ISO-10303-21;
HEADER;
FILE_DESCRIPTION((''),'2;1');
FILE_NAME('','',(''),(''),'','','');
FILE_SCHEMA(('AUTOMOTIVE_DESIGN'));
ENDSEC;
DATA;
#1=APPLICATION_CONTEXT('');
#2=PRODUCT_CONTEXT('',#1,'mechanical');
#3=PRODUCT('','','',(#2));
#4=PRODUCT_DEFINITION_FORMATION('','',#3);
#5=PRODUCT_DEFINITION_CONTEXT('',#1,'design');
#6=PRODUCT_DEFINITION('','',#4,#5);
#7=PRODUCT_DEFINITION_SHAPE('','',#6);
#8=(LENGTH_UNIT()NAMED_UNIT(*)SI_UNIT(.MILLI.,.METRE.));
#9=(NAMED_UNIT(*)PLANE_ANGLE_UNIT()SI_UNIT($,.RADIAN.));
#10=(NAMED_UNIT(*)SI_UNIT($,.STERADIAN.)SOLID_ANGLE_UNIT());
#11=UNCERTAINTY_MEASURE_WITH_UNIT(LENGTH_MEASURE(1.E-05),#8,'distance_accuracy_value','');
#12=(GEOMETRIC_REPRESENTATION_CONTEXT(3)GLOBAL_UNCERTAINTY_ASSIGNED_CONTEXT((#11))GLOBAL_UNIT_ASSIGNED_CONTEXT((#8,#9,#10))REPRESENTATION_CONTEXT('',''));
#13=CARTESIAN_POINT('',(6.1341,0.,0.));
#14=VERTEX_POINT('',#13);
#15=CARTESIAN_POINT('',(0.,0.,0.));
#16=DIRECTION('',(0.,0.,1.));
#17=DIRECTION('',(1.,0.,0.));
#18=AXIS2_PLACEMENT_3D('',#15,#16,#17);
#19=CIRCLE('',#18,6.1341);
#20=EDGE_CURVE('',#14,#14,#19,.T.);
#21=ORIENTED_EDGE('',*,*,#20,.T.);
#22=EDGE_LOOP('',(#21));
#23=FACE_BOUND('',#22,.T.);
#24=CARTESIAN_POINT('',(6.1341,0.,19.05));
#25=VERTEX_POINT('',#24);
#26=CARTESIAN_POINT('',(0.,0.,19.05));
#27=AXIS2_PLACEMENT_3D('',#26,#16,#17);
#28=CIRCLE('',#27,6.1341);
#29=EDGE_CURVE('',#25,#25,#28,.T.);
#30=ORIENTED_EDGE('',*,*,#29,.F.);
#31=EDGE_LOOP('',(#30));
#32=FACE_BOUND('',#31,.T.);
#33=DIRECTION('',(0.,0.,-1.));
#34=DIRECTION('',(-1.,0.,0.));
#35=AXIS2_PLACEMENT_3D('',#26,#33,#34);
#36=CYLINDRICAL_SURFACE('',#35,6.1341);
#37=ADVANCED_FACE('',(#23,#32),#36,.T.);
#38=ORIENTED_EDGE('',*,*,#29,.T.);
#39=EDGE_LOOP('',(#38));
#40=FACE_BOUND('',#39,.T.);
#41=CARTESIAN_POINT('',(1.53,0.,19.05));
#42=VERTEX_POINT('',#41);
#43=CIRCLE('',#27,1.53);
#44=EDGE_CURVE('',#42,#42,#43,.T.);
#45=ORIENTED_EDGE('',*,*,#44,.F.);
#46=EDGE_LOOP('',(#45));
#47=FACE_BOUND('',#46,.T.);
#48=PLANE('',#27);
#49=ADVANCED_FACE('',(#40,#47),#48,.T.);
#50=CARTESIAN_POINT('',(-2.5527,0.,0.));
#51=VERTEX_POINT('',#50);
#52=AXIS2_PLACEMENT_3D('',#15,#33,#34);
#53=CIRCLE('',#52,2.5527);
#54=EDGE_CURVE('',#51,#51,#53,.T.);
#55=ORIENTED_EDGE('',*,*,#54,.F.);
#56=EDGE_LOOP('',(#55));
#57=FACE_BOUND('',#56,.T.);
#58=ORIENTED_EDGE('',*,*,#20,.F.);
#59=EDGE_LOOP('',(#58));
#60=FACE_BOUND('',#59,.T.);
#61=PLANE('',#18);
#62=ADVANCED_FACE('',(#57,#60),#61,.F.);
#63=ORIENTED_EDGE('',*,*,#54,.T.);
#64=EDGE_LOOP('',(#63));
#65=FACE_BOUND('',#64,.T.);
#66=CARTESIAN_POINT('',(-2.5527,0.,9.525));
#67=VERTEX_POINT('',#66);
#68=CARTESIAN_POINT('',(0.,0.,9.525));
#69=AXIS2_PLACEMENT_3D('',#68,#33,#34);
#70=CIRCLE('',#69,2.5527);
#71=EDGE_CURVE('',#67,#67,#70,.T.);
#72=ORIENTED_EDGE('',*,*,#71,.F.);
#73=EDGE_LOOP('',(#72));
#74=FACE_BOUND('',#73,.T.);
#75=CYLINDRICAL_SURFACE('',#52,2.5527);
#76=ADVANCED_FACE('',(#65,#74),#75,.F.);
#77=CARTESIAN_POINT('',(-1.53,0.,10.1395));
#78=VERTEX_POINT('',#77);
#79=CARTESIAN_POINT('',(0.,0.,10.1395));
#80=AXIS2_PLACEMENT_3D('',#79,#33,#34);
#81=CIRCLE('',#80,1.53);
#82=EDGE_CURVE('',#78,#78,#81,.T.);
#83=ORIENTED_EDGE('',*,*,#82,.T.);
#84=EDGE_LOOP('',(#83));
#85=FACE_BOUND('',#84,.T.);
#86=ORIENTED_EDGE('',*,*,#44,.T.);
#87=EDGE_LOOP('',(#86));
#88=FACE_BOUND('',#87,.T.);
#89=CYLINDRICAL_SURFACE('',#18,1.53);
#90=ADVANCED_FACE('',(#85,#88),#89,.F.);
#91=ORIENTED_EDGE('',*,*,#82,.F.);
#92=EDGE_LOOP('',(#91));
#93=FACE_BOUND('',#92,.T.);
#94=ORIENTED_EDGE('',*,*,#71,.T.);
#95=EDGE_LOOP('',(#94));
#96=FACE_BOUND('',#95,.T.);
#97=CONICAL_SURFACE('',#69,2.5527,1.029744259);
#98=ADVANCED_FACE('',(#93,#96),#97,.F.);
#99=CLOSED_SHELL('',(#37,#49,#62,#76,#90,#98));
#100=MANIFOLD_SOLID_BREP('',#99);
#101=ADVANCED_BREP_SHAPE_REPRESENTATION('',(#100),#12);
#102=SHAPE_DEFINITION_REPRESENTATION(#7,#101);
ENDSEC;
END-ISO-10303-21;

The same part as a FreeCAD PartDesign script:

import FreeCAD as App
import Part
import Sketcher
Q = App.Units.Quantity

doc = App.newDocument("Part")
body = doc.addObject("PartDesign::Body", "Body")

sketch1 = body.newObject("Sketcher::SketchObject", "Sketch")
sketch1.AttachmentSupport = (doc.getObject("XY_Plane"), [""])
sketch1.MapMode = "FlatFace"
sketch1.addGeometry(Part.Circle(App.Vector(0, 0, 0), App.Vector(0, 0, 1), 6), False)
sketch1.addConstraint(Sketcher.Constraint("Coincident", 0, 3, -1, 1))
sketch1.addConstraint(Sketcher.Constraint("Diameter", 0, Q("0.483 in")))
pad1 = body.newObject("PartDesign::Pad", "Pad")
pad1.Profile = sketch1
pad1.Length = Q("0.75 in")

sketch2 = body.newObject("Sketcher::SketchObject", "Sketch001")
sketch2.AttachmentSupport = (doc.getObject("XY_Plane"), [""])
sketch2.MapMode = "FlatFace"
sketch2.AttachmentOffset = App.Placement(App.Vector(0, 0, 0.75 * 25.4), App.Rotation())
sketch2.addGeometry(Part.Circle(App.Vector(0, 0, 0), App.Vector(0, 0, 1), 1.5), False)
sketch2.addConstraint(Sketcher.Constraint("Coincident", 0, 3, -1, 1))
sketch2.addConstraint(Sketcher.Constraint("Diameter", 0, Q("3.06 mm")))
pocket1 = body.newObject("PartDesign::Pocket", "Pocket")
pocket1.Profile = sketch2
pocket1.Type = "ThroughAll"

sketch3 = body.newObject("Sketcher::SketchObject", "Sketch002")
sketch3.AttachmentSupport = (doc.getObject("XY_Plane"), [""])
sketch3.MapMode = "FlatFace"
sketch3.addGeometry(Part.Circle(App.Vector(0, 0, 0), App.Vector(0, 0, 1), 2.6), False)
sketch3.addConstraint(Sketcher.Constraint("Coincident", 0, 3, -1, 1))
sketch3.addConstraint(Sketcher.Constraint("Diameter", 0, Q("0.201 in")))
doc.recompute()
hole = body.newObject("PartDesign::Hole", "Hole")
hole.Profile = sketch3
hole.ThreadType = "None"
hole.Diameter = Q("0.201 in")
hole.DepthType = "Dimension"
hole.Depth = Q("0.375 in")
hole.DrillPoint = "Angled"
hole.DrillPointAngle = 118
hole.Reversed = True

doc.recompute()
